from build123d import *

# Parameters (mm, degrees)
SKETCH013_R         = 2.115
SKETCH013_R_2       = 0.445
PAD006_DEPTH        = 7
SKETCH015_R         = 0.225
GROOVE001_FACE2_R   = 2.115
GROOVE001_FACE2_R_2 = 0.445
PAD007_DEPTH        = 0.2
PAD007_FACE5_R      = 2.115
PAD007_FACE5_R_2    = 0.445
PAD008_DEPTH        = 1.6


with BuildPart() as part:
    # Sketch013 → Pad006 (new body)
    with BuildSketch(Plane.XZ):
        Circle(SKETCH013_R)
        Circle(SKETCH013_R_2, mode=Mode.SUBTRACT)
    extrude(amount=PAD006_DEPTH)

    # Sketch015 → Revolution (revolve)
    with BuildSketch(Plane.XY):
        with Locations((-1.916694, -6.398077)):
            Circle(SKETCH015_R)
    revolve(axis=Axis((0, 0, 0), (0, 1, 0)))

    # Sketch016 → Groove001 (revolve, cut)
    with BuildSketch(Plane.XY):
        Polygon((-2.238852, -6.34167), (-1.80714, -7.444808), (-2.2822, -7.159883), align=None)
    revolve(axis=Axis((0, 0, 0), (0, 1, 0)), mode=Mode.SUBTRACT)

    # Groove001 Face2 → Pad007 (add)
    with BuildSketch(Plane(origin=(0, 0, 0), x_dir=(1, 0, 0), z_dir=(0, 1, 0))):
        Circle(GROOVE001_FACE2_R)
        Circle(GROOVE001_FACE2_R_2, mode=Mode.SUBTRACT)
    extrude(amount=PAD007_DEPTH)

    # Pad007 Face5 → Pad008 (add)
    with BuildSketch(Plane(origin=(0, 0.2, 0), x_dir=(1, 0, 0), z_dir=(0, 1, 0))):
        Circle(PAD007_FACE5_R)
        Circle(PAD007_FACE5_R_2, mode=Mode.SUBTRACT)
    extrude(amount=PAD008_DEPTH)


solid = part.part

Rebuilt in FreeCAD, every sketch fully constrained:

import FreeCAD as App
import Part
import Sketcher
Q = App.Units.Quantity


def add_polygon(sketch, points):
    """Adds a closed chain of lines whose ends are joined by coincident constraints."""
    first, n = sketch.GeometryCount, len(points)
    for a, b in zip(points, points[1:] + points[:1]):
        sketch.addGeometry(Part.LineSegment(App.Vector(*a, 0), App.Vector(*b, 0)), False)
    for i in range(n):
        sketch.addConstraint(Sketcher.Constraint("Coincident", first + i, 2, first + (i + 1) % n, 1))

doc = App.newDocument("Part")
body = doc.addObject("PartDesign::Body", "Body")

# Sketch on XZ plane
sketch1 = body.newObject("Sketcher::SketchObject", "Sketch")
sketch1.AttachmentSupport = (doc.getObject("XZ_Plane"), [""])
sketch1.MapMode = "FlatFace"
sketch1.addGeometry([
    Part.Circle(App.Vector(0, 0, 0), App.Vector(0, 0, 1), 2.115),
    Part.Circle(App.Vector(0, 0, 0), App.Vector(0, 0, 1), 0.445),
], False)
sketch1.addConstraint([
    Sketcher.Constraint("Coincident", 0, 3, -1, 1),
    Sketcher.Constraint("Coincident", 1, 3, -1, 1),
    Sketcher.Constraint("Diameter", 0, Q("4.23 mm")),
    Sketcher.Constraint("Diameter", 1, Q("0.89 mm")),
])
pad1 = body.newObject("PartDesign::Pad", "Pad")
pad1.Profile = sketch1
pad1.Length = 7

# Sketch on XY plane
sketch2 = body.newObject("Sketcher::SketchObject", "Sketch001")
sketch2.AttachmentSupport = (doc.getObject("XY_Plane"), [""])
sketch2.MapMode = "FlatFace"
sketch2.addGeometry(Part.Circle(App.Vector(-1.916694, -6.398077, 0), App.Vector(0, 0, 1), 0.225), False)
sketch2.addConstraint([
    Sketcher.Constraint("Diameter", 0, Q("0.45 mm")),
    Sketcher.Constraint("DistanceX", 0, 3, -1, 1, Q("1.916694 mm")),
    Sketcher.Constraint("DistanceY", 0, 3, -1, 1, Q("6.398077 mm")),
])
revolution = body.newObject("PartDesign::Revolution", "Revolution")
revolution.Profile = sketch2
revolution.ReferenceAxis = (sketch2, ["V_Axis"])
revolution.Angle = 360

# Sketch on XY plane
sketch3 = body.newObject("Sketcher::SketchObject", "Sketch002")
sketch3.AttachmentSupport = (doc.getObject("XY_Plane"), [""])
sketch3.MapMode = "FlatFace"
add_polygon(sketch3, [(-1.80714, -7.444808), (-2.238852, -6.34167), (-2.2822, -7.159883)])  # lines 0-2
sketch3.addConstraint([
    Sketcher.Constraint("DistanceX", 1, 2, -1, 1, Q("2.2822 mm")),
    Sketcher.Constraint("Distance", 1, Q("0.81936 mm")),
    Sketcher.Constraint("DistanceY", 0, 2, -1, 1, Q("6.34167 mm")),
    Sketcher.Constraint("DistanceX", 2, 2, -1, 1, Q("1.80714 mm")),
    Sketcher.Constraint("DistanceY", 2, 2, 0, 2, Q("1.103138 mm")),
    Sketcher.Constraint("Distance", 0, Q("1.184605 mm")),
])
groove = body.newObject("PartDesign::Groove", "Groove")
groove.Profile = sketch3
groove.ReferenceAxis = (sketch3, ["V_Axis"])
groove.Angle = 360

# Sketch on XZ plane
sketch4 = body.newObject("Sketcher::SketchObject", "Sketch003")
sketch4.AttachmentSupport = (doc.getObject("XZ_Plane"), [""])
sketch4.MapMode = "FlatFace"
sketch4.addGeometry([
    Part.Circle(App.Vector(0, 0, 0), App.Vector(0, 0, 1), 2.115),
    Part.Circle(App.Vector(0, 0, 0), App.Vector(0, 0, 1), 0.445),
], False)
sketch4.addConstraint([
    Sketcher.Constraint("Coincident", 0, 3, -1, 1),
    Sketcher.Constraint("Coincident", 1, 3, -1, 1),
    Sketcher.Constraint("Diameter", 0, Q("4.23 mm")),
    Sketcher.Constraint("Diameter", 1, Q("0.89 mm")),
])
pad2 = body.newObject("PartDesign::Pad", "Pad001")
pad2.Profile = sketch4
pad2.Length = 0.2
pad2.Reversed = True

# Sketch on XZ plane
sketch5 = body.newObject("Sketcher::SketchObject", "Sketch004")
sketch5.AttachmentSupport = (doc.getObject("XZ_Plane"), [""])
sketch5.MapMode = "FlatFace"
sketch5.AttachmentOffset = App.Placement(App.Vector(0, 0, -0.2), App.Rotation())
sketch5.addGeometry([
    Part.Circle(App.Vector(0, 0, 0), App.Vector(0, 0, 1), 2.115),
    Part.Circle(App.Vector(0, 0, 0), App.Vector(0, 0, 1), 0.445),
], False)
sketch5.addConstraint([
    Sketcher.Constraint("Coincident", 0, 3, -1, 1),
    Sketcher.Constraint("Coincident", 1, 3, -1, 1),
    Sketcher.Constraint("Diameter", 0, Q("4.23 mm")),
    Sketcher.Constraint("Diameter", 1, Q("0.89 mm")),
])
pad3 = body.newObject("PartDesign::Pad", "Pad002")
pad3.Profile = sketch5
pad3.Length = 1.6
pad3.Reversed = True

doc.recompute()
